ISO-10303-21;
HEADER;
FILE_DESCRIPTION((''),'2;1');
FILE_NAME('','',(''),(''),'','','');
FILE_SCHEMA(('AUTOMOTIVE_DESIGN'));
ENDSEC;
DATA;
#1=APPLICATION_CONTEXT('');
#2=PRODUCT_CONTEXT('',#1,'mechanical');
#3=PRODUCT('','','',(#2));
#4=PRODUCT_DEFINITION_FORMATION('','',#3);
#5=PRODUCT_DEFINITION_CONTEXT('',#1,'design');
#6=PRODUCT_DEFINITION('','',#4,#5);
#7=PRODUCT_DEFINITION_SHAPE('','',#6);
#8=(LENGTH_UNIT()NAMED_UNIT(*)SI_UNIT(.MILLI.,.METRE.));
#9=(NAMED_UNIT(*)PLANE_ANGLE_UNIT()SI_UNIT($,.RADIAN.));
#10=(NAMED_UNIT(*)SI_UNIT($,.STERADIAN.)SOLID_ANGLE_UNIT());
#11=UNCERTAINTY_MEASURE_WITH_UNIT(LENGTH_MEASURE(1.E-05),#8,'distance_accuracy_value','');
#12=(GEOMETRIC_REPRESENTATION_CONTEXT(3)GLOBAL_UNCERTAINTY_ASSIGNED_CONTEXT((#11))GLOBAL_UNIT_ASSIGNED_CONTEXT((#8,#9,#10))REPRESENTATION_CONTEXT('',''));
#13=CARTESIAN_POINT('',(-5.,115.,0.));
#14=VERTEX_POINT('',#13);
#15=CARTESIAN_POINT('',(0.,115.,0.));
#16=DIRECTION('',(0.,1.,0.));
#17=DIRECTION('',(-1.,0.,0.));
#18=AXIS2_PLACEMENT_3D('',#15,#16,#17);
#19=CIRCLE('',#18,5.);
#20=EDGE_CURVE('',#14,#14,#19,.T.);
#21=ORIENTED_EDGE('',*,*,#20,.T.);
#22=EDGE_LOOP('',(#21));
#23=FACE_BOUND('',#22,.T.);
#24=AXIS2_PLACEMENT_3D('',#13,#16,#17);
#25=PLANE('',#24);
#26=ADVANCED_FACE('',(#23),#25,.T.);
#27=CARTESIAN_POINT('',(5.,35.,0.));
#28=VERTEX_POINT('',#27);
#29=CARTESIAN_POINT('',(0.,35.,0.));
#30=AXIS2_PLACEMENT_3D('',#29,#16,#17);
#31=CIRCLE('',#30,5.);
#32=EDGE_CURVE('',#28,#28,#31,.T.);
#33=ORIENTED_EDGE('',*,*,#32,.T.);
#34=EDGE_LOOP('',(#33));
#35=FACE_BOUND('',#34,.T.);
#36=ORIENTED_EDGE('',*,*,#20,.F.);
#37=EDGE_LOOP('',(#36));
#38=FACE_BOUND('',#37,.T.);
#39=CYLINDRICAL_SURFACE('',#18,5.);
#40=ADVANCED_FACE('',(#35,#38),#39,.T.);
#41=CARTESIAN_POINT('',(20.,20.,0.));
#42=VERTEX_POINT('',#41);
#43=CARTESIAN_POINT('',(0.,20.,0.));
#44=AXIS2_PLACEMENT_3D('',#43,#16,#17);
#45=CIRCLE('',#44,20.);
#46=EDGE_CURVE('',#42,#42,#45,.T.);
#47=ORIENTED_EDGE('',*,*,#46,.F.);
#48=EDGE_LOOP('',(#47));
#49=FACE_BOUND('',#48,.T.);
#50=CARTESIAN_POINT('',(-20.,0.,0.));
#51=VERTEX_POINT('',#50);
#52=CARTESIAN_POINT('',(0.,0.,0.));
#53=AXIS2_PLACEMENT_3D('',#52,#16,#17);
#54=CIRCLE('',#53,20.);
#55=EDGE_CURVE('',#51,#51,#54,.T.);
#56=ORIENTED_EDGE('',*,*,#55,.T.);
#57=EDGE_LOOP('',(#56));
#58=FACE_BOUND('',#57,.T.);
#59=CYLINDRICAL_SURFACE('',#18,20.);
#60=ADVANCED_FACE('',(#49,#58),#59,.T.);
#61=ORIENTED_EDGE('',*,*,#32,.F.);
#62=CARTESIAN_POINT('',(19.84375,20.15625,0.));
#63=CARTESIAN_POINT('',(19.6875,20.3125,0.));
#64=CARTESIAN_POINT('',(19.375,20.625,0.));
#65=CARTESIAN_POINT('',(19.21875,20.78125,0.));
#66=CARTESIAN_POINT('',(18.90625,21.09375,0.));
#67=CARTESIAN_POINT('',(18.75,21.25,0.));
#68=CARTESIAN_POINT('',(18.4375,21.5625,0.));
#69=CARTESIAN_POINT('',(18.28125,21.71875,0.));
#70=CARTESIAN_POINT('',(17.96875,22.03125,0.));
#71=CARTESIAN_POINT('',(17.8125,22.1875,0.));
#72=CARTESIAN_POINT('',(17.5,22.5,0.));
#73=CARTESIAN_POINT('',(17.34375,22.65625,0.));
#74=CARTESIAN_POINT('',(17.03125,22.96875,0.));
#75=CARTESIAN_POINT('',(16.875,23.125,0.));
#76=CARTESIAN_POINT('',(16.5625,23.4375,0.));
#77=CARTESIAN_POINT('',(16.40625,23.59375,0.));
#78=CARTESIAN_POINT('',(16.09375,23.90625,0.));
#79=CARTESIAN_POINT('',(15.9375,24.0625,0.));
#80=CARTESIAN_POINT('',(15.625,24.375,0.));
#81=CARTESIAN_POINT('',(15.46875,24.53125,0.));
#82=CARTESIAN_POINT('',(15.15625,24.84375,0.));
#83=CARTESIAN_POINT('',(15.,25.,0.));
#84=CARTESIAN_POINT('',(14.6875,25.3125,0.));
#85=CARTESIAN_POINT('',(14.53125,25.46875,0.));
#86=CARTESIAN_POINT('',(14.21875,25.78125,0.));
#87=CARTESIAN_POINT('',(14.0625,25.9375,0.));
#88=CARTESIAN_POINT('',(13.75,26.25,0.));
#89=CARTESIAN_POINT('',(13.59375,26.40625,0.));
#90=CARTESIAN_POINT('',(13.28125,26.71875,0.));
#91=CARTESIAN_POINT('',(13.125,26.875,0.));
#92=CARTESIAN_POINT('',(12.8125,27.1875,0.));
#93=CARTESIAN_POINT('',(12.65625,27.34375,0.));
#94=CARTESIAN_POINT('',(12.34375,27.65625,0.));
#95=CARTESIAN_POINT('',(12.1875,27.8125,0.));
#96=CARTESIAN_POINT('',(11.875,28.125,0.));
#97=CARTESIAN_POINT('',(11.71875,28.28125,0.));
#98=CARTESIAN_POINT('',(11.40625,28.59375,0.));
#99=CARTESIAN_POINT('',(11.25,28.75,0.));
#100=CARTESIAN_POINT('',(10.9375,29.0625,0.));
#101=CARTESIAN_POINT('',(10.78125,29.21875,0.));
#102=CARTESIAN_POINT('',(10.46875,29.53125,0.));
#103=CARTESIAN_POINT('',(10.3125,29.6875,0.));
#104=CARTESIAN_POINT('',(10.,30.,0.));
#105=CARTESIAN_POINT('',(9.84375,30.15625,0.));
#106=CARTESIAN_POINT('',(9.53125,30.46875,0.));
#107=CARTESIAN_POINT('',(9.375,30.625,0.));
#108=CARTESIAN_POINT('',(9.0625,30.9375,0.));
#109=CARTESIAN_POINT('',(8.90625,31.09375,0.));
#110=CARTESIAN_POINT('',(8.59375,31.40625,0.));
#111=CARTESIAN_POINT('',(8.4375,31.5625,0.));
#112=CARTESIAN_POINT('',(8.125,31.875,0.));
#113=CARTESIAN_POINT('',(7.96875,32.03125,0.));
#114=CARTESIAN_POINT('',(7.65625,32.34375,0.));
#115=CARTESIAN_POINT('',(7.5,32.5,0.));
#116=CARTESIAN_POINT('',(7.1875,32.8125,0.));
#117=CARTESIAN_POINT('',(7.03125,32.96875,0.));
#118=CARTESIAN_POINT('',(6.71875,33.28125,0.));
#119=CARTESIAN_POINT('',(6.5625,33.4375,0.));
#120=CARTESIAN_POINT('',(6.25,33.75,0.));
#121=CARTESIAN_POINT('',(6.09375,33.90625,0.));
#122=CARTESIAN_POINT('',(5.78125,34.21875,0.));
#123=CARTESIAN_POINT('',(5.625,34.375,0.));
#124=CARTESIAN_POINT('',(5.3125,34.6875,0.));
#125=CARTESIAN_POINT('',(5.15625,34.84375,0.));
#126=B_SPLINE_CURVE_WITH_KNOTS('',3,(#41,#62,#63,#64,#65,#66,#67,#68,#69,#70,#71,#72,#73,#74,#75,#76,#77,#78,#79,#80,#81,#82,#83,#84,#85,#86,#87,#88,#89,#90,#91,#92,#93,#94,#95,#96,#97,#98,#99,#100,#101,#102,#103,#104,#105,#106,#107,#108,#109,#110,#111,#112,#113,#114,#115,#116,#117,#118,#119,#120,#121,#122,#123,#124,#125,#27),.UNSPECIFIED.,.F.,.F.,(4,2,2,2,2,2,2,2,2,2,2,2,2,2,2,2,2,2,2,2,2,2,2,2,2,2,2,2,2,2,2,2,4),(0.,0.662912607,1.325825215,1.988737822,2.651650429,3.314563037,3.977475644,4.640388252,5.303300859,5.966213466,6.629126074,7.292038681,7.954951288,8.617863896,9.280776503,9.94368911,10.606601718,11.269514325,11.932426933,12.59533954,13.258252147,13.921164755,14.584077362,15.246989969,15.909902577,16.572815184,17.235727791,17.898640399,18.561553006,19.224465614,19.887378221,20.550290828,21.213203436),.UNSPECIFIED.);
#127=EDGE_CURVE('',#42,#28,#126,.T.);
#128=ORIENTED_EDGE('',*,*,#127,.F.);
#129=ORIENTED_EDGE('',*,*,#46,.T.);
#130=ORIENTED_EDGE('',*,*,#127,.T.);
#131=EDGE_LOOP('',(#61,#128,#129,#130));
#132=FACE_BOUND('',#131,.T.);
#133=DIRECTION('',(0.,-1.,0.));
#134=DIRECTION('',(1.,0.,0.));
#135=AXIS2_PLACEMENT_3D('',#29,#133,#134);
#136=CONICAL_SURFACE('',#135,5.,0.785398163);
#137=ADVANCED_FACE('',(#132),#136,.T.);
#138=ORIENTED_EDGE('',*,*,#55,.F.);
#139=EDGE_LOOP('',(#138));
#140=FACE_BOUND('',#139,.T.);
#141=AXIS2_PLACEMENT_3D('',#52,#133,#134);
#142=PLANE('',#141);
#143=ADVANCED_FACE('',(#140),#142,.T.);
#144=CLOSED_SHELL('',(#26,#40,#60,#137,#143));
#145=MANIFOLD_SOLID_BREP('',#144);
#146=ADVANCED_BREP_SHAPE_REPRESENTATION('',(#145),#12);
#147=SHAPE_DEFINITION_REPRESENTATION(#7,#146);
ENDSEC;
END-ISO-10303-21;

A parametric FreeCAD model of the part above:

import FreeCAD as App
import Part
import Sketcher
Q = App.Units.Quantity

doc = App.newDocument("Part")
body = doc.addObject("PartDesign::Body", "Body")

# Sketch on XY plane
sketch1 = body.newObject("Sketcher::SketchObject", "Sketch")
sketch1.AttachmentSupport = (doc.getObject("XY_Plane"), [""])
sketch1.MapMode = "FlatFace"
sketch1.addGeometry([
    Part.LineSegment(App.Vector(-20, 0, 0), App.Vector(0, 0, 0)),  # 0
    Part.LineSegment(App.Vector(0, 0, 0), App.Vector(0, 115, 0)),  # 1
    Part.LineSegment(App.Vector(0, 115, 0), App.Vector(-5, 115, 0)),  # 2
    Part.LineSegment(App.Vector(-5, 115, 0), App.Vector(-5, 35, 0)),  # 3
    Part.LineSegment(App.Vector(-5, 35, 0), App.Vector(-20, 20, 0)),  # 4
    Part.LineSegment(App.Vector(-20, 20, 0), App.Vector(-20, 0, 0)),  # 5
], False)
sketch1.addConstraint([
    Sketcher.Constraint("Coincident", 0, 2, 1, 1),
    Sketcher.Constraint("Coincident", 1, 2, 2, 1),
    Sketcher.Constraint("Coincident", 2, 2, 3, 1),
    Sketcher.Constraint("Coincident", 3, 2, 4, 1),
    Sketcher.Constraint("Coincident", 4, 2, 5, 1),
    Sketcher.Constraint("Coincident", 5, 2, 0, 1),
    Sketcher.Constraint("Horizontal", 0),
    Sketcher.Constraint("Vertical", 1),
    Sketcher.Constraint("Horizontal", 2),
    Sketcher.Constraint("Vertical", 3),
    Sketcher.Constraint("Vertical", 5),
    Sketcher.Constraint("Coincident", 0, 2, -1, 1),
    Sketcher.Constraint("Equal", 0, 5),
    Sketcher.Constraint("DistanceX", 0, 1, 0, 2, Q("20 mm")),
    Sketcher.Constraint("DistanceX", 2, 2, 2, 1, Q("5 mm")),
    Sketcher.Constraint("DistanceY", 1, 1, 1, 2, Q("115 mm")),
    Sketcher.Constraint("DistanceY", 3, 2, 3, 1, Q("80 mm")),
])
revolution = body.newObject("PartDesign::Revolution", "Revolution")
revolution.Profile = sketch1
revolution.ReferenceAxis = (sketch1, ["V_Axis"])
revolution.Angle = 360

doc.recompute()
